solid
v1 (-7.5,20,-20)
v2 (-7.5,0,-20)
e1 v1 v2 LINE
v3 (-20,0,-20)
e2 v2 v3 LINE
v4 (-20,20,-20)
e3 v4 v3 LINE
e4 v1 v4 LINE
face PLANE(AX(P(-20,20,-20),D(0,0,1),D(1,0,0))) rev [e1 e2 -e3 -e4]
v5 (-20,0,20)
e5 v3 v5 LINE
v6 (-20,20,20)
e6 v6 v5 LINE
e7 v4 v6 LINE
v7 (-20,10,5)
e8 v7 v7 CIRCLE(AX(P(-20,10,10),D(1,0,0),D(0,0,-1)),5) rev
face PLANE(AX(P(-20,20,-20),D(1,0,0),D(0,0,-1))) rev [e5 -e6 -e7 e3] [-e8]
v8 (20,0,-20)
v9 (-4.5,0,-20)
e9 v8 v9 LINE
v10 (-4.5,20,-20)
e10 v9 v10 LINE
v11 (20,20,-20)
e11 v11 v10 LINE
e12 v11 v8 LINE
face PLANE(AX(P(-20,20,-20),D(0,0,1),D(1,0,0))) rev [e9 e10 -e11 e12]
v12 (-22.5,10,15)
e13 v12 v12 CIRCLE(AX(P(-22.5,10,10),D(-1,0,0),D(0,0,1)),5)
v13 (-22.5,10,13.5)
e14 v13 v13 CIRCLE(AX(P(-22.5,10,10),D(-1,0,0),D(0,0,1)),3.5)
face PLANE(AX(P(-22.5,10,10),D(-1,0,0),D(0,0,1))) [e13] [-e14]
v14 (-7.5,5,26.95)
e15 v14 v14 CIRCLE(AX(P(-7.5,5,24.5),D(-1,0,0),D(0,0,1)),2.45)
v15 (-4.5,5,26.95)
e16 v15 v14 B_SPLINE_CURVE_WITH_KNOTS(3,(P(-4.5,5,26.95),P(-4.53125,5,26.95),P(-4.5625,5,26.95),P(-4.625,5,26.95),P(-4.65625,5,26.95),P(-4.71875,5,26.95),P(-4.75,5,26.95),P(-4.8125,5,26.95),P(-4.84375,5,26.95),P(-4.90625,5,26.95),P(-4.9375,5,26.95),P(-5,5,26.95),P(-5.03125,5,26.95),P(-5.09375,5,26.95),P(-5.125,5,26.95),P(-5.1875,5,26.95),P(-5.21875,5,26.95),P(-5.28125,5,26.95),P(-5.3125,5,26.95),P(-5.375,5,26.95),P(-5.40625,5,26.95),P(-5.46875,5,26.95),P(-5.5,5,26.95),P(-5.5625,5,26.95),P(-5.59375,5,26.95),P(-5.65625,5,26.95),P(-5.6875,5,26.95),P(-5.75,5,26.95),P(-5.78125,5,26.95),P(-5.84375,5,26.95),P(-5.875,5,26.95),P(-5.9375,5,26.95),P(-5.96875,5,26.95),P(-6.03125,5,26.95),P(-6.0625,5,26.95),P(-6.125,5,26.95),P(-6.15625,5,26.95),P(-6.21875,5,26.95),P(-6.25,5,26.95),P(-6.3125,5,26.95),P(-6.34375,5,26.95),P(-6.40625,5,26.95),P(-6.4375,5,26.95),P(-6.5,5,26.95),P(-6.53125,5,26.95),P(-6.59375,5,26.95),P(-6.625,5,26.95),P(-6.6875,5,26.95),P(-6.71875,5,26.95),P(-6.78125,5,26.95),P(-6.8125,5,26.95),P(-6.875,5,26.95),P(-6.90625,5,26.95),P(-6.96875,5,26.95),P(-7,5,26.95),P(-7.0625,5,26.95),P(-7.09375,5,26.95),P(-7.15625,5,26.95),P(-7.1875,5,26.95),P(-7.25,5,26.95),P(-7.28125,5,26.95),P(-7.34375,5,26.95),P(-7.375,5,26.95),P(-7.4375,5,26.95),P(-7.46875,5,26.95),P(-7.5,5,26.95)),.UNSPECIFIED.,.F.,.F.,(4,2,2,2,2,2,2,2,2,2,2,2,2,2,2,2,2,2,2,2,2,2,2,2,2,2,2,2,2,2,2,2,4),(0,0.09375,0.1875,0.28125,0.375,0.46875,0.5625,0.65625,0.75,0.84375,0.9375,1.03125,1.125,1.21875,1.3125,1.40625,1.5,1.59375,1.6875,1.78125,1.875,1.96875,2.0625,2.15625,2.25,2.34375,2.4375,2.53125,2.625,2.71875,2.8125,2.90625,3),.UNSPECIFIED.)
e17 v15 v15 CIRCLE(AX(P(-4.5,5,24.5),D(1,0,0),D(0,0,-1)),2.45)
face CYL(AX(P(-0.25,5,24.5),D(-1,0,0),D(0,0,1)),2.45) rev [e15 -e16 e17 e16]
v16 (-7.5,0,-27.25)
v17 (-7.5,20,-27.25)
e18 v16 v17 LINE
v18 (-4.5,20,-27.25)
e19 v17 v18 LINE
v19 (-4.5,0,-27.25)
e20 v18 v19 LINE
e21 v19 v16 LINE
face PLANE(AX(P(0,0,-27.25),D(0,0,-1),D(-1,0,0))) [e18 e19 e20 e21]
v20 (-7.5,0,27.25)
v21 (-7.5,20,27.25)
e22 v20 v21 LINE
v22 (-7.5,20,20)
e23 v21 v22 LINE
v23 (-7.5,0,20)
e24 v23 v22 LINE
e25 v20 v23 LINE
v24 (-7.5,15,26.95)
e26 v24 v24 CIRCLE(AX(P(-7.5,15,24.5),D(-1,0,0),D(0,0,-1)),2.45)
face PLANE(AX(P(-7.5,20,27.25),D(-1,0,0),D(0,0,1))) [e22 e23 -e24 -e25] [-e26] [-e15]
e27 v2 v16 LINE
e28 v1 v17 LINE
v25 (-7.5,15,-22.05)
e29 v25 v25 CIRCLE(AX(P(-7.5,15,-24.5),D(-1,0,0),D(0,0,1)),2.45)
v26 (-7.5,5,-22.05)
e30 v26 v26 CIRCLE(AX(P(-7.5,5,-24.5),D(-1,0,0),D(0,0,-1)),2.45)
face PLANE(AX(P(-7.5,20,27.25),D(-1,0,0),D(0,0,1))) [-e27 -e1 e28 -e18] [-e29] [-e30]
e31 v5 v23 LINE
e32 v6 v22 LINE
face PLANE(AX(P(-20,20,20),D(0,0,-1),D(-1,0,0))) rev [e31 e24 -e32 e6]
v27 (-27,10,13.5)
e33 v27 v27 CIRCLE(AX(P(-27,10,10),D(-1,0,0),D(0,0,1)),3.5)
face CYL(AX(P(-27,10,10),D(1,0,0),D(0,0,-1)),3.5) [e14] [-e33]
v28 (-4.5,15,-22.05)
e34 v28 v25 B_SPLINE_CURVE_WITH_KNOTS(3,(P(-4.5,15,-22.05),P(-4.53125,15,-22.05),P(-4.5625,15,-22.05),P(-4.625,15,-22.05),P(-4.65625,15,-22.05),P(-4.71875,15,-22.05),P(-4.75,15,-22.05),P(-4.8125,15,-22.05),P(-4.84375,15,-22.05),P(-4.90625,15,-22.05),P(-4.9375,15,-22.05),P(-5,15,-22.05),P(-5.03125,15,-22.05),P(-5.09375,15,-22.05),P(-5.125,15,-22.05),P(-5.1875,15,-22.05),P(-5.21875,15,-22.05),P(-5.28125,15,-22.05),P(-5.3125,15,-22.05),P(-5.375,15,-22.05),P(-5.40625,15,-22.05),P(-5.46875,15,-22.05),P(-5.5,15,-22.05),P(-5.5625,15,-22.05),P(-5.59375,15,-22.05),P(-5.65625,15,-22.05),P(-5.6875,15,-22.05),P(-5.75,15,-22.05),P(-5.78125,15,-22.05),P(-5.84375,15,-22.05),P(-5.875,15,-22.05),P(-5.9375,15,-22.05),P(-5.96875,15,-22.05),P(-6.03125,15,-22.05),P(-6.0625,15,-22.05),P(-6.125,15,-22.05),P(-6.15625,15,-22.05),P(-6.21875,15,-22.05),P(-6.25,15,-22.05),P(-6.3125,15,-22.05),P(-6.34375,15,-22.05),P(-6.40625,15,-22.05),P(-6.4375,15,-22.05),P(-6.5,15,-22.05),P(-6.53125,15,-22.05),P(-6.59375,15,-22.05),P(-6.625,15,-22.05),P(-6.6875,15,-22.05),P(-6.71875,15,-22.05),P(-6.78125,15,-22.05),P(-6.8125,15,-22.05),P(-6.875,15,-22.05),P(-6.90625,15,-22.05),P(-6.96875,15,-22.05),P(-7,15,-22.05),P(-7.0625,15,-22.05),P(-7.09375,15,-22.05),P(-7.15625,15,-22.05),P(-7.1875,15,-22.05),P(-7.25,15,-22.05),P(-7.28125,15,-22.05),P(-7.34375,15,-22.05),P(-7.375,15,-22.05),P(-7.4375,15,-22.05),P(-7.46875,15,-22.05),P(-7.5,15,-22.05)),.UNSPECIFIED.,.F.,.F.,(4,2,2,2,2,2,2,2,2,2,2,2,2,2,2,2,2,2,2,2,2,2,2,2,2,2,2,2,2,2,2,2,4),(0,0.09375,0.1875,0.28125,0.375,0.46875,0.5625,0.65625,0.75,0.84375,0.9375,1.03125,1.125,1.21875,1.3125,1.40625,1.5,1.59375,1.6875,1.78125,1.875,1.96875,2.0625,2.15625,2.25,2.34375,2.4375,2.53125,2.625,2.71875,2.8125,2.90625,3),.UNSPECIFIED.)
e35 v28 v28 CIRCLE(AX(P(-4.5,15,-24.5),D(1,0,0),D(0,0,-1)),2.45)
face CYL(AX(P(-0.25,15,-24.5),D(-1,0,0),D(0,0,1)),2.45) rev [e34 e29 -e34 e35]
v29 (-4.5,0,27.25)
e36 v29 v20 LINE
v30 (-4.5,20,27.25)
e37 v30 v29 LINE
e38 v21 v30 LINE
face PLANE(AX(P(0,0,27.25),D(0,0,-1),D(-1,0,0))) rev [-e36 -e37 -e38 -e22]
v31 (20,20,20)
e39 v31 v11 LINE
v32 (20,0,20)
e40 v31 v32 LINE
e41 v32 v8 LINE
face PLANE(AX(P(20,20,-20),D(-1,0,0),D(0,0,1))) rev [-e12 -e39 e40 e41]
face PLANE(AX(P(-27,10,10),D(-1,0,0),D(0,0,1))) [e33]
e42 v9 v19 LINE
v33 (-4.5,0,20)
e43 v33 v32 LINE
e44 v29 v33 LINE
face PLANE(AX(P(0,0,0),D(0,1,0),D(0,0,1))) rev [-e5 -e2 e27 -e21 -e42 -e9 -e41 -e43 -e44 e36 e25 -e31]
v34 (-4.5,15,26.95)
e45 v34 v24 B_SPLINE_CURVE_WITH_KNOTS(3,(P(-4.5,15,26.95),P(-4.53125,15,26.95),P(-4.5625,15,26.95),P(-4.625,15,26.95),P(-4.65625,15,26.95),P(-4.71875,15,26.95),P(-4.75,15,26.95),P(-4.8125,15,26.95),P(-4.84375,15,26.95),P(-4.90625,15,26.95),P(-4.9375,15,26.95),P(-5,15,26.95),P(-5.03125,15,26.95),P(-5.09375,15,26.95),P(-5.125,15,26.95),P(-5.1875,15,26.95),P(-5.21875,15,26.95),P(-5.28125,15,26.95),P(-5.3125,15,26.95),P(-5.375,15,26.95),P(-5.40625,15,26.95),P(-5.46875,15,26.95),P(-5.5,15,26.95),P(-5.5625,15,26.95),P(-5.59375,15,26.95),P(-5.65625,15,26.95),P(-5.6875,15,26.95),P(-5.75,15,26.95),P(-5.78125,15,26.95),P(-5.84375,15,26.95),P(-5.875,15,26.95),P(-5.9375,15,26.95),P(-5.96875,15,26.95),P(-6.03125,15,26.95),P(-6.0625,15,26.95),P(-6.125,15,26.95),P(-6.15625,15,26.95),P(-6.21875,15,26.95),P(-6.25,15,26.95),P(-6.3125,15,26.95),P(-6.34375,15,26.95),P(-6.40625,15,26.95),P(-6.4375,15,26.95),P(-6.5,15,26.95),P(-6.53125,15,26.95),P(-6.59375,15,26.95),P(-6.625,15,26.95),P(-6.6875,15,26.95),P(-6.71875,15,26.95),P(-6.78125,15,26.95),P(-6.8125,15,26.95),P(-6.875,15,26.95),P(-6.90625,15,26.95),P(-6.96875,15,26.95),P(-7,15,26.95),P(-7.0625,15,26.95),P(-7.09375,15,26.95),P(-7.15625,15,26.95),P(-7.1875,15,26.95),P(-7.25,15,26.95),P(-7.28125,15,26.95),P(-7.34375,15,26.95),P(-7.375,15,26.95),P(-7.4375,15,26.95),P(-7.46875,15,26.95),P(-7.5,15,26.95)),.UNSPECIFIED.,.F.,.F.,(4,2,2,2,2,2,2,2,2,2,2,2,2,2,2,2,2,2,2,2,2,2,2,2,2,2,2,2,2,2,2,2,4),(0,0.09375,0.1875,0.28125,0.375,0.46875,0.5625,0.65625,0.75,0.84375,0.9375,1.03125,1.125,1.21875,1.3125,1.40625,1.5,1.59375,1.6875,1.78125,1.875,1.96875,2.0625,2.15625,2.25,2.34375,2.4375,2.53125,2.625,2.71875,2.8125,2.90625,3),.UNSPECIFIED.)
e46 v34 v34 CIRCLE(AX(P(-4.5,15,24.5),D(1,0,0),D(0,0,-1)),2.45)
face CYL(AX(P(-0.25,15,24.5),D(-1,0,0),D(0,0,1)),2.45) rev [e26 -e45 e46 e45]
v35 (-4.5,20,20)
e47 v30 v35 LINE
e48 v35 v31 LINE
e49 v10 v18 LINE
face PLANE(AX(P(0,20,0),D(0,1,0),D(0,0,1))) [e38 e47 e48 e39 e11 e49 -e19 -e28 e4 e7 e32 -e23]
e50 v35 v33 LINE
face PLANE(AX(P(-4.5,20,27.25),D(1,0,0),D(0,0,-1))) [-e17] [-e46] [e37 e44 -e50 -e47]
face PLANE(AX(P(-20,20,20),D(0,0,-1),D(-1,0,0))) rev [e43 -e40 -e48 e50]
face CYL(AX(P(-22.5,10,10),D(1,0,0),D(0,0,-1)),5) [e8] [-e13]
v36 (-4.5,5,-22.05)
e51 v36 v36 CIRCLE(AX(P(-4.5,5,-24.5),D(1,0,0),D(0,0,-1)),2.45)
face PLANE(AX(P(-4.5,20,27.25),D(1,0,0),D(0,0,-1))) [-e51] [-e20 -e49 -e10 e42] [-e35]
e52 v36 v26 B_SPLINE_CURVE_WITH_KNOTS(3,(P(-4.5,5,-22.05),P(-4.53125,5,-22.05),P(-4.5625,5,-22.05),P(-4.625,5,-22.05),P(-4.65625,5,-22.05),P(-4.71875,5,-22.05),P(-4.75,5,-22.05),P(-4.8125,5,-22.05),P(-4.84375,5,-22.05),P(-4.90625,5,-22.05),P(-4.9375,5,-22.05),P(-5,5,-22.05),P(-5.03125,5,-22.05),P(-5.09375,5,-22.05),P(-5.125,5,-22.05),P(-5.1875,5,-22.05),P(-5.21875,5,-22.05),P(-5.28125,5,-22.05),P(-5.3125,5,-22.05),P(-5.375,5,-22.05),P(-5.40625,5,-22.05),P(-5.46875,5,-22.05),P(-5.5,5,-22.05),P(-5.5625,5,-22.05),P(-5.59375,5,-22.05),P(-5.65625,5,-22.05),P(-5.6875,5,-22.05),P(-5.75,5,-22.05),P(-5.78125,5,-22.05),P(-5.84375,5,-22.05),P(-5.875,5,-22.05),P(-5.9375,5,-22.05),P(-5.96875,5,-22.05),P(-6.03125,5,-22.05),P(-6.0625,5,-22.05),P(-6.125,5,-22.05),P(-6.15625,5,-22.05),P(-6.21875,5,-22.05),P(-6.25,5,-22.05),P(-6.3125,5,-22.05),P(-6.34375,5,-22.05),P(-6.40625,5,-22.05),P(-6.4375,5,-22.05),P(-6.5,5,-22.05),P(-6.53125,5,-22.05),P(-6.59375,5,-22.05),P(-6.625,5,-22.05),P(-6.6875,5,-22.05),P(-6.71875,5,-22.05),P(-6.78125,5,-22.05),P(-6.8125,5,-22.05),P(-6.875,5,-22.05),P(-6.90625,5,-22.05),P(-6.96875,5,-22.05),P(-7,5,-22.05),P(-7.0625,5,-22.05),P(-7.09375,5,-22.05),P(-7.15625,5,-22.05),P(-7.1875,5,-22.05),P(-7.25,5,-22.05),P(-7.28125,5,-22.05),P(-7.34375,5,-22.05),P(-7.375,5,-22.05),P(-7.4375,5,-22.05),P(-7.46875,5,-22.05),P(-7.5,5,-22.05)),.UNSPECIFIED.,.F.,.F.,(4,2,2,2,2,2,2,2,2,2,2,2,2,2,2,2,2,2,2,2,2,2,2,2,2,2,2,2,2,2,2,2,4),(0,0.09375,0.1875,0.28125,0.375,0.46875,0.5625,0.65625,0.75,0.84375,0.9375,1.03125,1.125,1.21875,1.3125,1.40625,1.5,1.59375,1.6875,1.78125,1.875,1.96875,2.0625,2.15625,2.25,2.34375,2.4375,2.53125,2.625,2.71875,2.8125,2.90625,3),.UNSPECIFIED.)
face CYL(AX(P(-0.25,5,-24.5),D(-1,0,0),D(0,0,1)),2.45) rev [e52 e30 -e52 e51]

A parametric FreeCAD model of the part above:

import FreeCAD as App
import Part
import Sketcher

V = App.Vector


def add_polygon(sketch, points):
    """Adds a closed chain of lines whose ends are joined by coincident constraints."""
    first, n = sketch.GeometryCount, len(points)
    for a, b in zip(points, points[1:] + points[:1]):
        sketch.addGeometry(Part.LineSegment(App.Vector(*a, 0), App.Vector(*b, 0)), False)
    for i in range(n):
        sketch.addConstraint(Sketcher.Constraint("Coincident", first + i, 2, first + (i + 1) % n, 1))

doc = App.newDocument("Part")
params = doc.addObject("Spreadsheet::Sheet", "Params")
for row, (alias, value) in enumerate([
    ("sketch1_width", "40 mm"),
    ("pad1_length", "20 mm"),
    ("sketch2_width", "3 mm"),
    ("sketch2_height", "20 mm"),
    ("pad2_length", "7.25 mm"),
    ("pad2_length2", "47.25 mm"),
    ("sketch3_diameter", "4.9 mm"),
    ("pocket1_length", "7.25 mm"),
    ("sketch4_diameter", "7 mm"),
    ("pad3_length", "7 mm"),
    ("sketch5_diameter", "10 mm"),
    ("pad4_length", "2.5 mm"),
], start=1):
    params.set(f"A{row}", alias)
    params.set(f"B{row}", "=" + value)
    params.setAlias(f"B{row}", alias)

body = doc.addObject("PartDesign::Body", "Body")

# Sketch on XZ plane
sketch1 = body.newObject("Sketcher::SketchObject", "Sketch")
sketch1.AttachmentSupport = (doc.getObject("XZ_Plane"), [""])
sketch1.MapMode = "FlatFace"
add_polygon(sketch1, [(-20, -20), (-20, 20), (20, 20), (20, -20)])  # lines 0-3
sketch1.addConstraint(Sketcher.Constraint("Vertical", 0))
sketch1.addConstraint(Sketcher.Constraint("Horizontal", 1))
sketch1.addConstraint(Sketcher.Constraint("Vertical", 2))
sketch1.addConstraint(Sketcher.Constraint("Horizontal", 3))
sketch1.addConstraint(Sketcher.Constraint("Symmetric", 0, 2, 2, 2, -1, 1))
sketch1.addConstraint(Sketcher.Constraint("Equal", 3, 0))
sketch1.addConstraint(Sketcher.Constraint("DistanceX", 1, 1, 1, 2, 40.0))
sketch1.setExpression("Constraints[10]", "Params.sketch1_width")
pad1 = body.newObject("PartDesign::Pad", "Pad")
pad1.Profile = sketch1
pad1.setExpression("Length", "Params.pad1_length")
pad1.Reversed = True

# Sketch on XY plane
sketch2 = body.newObject("Sketcher::SketchObject", "Sketch001")
sketch2.AttachmentSupport = (doc.getObject("XY_Plane"), [""])
sketch2.MapMode = "FlatFace"
sketch2.AttachmentOffset = App.Placement(V(0, 0, -20), App.Rotation())
add_polygon(sketch2, [(-4.5, 20), (-4.5, 0), (-7.5, 0), (-7.5, 20)])  # lines 0-3
sketch2.addConstraint(Sketcher.Constraint("Vertical", 0))
sketch2.addConstraint(Sketcher.Constraint("Horizontal", 1))
sketch2.addConstraint(Sketcher.Constraint("Vertical", 2))
sketch2.addConstraint(Sketcher.Constraint("Horizontal", 3))
sketch2.addConstraint(Sketcher.Constraint("PointOnObject", 0, 2, -1))
sketch2.addConstraint(Sketcher.Constraint("DistanceX", 1, 2, 1, 1, 3.0))
sketch2.addConstraint(Sketcher.Constraint("DistanceY", 0, 2, 0, 1, 20.0))
sketch2.addConstraint(Sketcher.Constraint("DistanceX", 0, 2, -1, 1, 4.5))
sketch2.setExpression("Constraints[9]", "Params.sketch2_width")
sketch2.setExpression("Constraints[10]", "Params.sketch2_height")
pad2 = body.newObject("PartDesign::Pad", "Pad001")
pad2.Profile = sketch2
pad2.Type = "TwoLengths"
pad2.setExpression("Length", "Params.pad2_length")
pad2.setExpression("Length2", "Params.pad2_length2")
pad2.Reversed = True

# Sketch on YZ plane
sketch3 = body.newObject("Sketcher::SketchObject", "Sketch002")
sketch3.AttachmentSupport = (doc.getObject("YZ_Plane"), [""])
sketch3.MapMode = "FlatFace"
sketch3.AttachmentOffset = App.Placement(V(0, 0, -7.5), App.Rotation())
sketch3.addGeometry(Part.Circle(V(15, -24.5, 0), V(0, 0, 1), 2.5), False)
sketch3.addGeometry(Part.Circle(V(15, 24.5, 0), V(0, 0, 1), 2.5), False)
sketch3.addGeometry(Part.Circle(V(5, 24.5, 0), V(0, 0, 1), 2.5), False)
sketch3.addGeometry(Part.Circle(V(5, -24.5, 0), V(0, 0, 1), 2.5), False)
sketch3.addConstraint(Sketcher.Constraint("Equal", 0, 1))
sketch3.addConstraint(Sketcher.Constraint("Equal", 1, 2))
sketch3.addConstraint(Sketcher.Constraint("Equal", 2, 3))
sketch3.addConstraint(Sketcher.Constraint("Symmetric", 0, 3, 1, 3, -1))
sketch3.addConstraint(Sketcher.Constraint("Symmetric", 2, 3, 3, 3, -1))
sketch3.addConstraint(Sketcher.Constraint("Horizontal", 1, 3, 2, 3))
sketch3.addConstraint(Sketcher.Constraint("Diameter", 0, 4.9))
sketch3.addConstraint(Sketcher.Constraint("DistanceX", -1, 1, 0, 3, 15.0))
sketch3.addConstraint(Sketcher.Constraint("DistanceX", -1, 1, 2, 3, 5.0))
sketch3.addConstraint(Sketcher.Constraint("DistanceY", 0, 3, 1, 3, 49.0))
sketch3.setExpression("Constraints[6]", "Params.sketch3_diameter")
pocket1 = body.newObject("PartDesign::Pocket", "Pocket")
pocket1.Profile = sketch3
pocket1.setExpression("Length", "Params.pocket1_length")
pocket1.Reversed = True

# Sketch on YZ plane
sketch4 = body.newObject("Sketcher::SketchObject", "Sketch003")
sketch4.AttachmentSupport = (doc.getObject("YZ_Plane"), [""])
sketch4.MapMode = "FlatFace"
sketch4.AttachmentOffset = App.Placement(V(0, 0, -20), App.Rotation())
sketch4.addGeometry(Part.Circle(V(10, 10, 0), V(0, 0, 1), 3.5), False)
sketch4.addConstraint(Sketcher.Constraint("Diameter", 0, 7.0))
sketch4.addConstraint(Sketcher.Constraint("DistanceX", -1, 1, 0, 3, 10.0))
sketch4.addConstraint(Sketcher.Constraint("DistanceY", -1, 1, 0, 3, 10.0))
sketch4.setExpression("Constraints[0]", "Params.sketch4_diameter")
pad3 = body.newObject("PartDesign::Pad", "Pad002")
pad3.Profile = sketch4
pad3.setExpression("Length", "Params.pad3_length")
pad3.Reversed = True

# Sketch on YZ plane
sketch5 = body.newObject("Sketcher::SketchObject", "Sketch004")
sketch5.AttachmentSupport = (doc.getObject("YZ_Plane"), [""])
sketch5.MapMode = "FlatFace"
sketch5.AttachmentOffset = App.Placement(V(0, 0, -20), App.Rotation())
sketch5.addGeometry(Part.Circle(V(10, 10, 0), V(0, 0, 1), 5), False)
sketch5.addConstraint(Sketcher.Constraint("Diameter", 0, 10.0))
sketch5.addConstraint(Sketcher.Constraint("DistanceX", -1, 1, 0, 3, 10.0))
sketch5.addConstraint(Sketcher.Constraint("DistanceY", -1, 1, 0, 3, 10.0))
sketch5.setExpression("Constraints[0]", "Params.sketch5_diameter")
pad4 = body.newObject("PartDesign::Pad", "Pad003")
pad4.Profile = sketch5
pad4.setExpression("Length", "Params.pad4_length")
pad4.Reversed = True

doc.recompute()
